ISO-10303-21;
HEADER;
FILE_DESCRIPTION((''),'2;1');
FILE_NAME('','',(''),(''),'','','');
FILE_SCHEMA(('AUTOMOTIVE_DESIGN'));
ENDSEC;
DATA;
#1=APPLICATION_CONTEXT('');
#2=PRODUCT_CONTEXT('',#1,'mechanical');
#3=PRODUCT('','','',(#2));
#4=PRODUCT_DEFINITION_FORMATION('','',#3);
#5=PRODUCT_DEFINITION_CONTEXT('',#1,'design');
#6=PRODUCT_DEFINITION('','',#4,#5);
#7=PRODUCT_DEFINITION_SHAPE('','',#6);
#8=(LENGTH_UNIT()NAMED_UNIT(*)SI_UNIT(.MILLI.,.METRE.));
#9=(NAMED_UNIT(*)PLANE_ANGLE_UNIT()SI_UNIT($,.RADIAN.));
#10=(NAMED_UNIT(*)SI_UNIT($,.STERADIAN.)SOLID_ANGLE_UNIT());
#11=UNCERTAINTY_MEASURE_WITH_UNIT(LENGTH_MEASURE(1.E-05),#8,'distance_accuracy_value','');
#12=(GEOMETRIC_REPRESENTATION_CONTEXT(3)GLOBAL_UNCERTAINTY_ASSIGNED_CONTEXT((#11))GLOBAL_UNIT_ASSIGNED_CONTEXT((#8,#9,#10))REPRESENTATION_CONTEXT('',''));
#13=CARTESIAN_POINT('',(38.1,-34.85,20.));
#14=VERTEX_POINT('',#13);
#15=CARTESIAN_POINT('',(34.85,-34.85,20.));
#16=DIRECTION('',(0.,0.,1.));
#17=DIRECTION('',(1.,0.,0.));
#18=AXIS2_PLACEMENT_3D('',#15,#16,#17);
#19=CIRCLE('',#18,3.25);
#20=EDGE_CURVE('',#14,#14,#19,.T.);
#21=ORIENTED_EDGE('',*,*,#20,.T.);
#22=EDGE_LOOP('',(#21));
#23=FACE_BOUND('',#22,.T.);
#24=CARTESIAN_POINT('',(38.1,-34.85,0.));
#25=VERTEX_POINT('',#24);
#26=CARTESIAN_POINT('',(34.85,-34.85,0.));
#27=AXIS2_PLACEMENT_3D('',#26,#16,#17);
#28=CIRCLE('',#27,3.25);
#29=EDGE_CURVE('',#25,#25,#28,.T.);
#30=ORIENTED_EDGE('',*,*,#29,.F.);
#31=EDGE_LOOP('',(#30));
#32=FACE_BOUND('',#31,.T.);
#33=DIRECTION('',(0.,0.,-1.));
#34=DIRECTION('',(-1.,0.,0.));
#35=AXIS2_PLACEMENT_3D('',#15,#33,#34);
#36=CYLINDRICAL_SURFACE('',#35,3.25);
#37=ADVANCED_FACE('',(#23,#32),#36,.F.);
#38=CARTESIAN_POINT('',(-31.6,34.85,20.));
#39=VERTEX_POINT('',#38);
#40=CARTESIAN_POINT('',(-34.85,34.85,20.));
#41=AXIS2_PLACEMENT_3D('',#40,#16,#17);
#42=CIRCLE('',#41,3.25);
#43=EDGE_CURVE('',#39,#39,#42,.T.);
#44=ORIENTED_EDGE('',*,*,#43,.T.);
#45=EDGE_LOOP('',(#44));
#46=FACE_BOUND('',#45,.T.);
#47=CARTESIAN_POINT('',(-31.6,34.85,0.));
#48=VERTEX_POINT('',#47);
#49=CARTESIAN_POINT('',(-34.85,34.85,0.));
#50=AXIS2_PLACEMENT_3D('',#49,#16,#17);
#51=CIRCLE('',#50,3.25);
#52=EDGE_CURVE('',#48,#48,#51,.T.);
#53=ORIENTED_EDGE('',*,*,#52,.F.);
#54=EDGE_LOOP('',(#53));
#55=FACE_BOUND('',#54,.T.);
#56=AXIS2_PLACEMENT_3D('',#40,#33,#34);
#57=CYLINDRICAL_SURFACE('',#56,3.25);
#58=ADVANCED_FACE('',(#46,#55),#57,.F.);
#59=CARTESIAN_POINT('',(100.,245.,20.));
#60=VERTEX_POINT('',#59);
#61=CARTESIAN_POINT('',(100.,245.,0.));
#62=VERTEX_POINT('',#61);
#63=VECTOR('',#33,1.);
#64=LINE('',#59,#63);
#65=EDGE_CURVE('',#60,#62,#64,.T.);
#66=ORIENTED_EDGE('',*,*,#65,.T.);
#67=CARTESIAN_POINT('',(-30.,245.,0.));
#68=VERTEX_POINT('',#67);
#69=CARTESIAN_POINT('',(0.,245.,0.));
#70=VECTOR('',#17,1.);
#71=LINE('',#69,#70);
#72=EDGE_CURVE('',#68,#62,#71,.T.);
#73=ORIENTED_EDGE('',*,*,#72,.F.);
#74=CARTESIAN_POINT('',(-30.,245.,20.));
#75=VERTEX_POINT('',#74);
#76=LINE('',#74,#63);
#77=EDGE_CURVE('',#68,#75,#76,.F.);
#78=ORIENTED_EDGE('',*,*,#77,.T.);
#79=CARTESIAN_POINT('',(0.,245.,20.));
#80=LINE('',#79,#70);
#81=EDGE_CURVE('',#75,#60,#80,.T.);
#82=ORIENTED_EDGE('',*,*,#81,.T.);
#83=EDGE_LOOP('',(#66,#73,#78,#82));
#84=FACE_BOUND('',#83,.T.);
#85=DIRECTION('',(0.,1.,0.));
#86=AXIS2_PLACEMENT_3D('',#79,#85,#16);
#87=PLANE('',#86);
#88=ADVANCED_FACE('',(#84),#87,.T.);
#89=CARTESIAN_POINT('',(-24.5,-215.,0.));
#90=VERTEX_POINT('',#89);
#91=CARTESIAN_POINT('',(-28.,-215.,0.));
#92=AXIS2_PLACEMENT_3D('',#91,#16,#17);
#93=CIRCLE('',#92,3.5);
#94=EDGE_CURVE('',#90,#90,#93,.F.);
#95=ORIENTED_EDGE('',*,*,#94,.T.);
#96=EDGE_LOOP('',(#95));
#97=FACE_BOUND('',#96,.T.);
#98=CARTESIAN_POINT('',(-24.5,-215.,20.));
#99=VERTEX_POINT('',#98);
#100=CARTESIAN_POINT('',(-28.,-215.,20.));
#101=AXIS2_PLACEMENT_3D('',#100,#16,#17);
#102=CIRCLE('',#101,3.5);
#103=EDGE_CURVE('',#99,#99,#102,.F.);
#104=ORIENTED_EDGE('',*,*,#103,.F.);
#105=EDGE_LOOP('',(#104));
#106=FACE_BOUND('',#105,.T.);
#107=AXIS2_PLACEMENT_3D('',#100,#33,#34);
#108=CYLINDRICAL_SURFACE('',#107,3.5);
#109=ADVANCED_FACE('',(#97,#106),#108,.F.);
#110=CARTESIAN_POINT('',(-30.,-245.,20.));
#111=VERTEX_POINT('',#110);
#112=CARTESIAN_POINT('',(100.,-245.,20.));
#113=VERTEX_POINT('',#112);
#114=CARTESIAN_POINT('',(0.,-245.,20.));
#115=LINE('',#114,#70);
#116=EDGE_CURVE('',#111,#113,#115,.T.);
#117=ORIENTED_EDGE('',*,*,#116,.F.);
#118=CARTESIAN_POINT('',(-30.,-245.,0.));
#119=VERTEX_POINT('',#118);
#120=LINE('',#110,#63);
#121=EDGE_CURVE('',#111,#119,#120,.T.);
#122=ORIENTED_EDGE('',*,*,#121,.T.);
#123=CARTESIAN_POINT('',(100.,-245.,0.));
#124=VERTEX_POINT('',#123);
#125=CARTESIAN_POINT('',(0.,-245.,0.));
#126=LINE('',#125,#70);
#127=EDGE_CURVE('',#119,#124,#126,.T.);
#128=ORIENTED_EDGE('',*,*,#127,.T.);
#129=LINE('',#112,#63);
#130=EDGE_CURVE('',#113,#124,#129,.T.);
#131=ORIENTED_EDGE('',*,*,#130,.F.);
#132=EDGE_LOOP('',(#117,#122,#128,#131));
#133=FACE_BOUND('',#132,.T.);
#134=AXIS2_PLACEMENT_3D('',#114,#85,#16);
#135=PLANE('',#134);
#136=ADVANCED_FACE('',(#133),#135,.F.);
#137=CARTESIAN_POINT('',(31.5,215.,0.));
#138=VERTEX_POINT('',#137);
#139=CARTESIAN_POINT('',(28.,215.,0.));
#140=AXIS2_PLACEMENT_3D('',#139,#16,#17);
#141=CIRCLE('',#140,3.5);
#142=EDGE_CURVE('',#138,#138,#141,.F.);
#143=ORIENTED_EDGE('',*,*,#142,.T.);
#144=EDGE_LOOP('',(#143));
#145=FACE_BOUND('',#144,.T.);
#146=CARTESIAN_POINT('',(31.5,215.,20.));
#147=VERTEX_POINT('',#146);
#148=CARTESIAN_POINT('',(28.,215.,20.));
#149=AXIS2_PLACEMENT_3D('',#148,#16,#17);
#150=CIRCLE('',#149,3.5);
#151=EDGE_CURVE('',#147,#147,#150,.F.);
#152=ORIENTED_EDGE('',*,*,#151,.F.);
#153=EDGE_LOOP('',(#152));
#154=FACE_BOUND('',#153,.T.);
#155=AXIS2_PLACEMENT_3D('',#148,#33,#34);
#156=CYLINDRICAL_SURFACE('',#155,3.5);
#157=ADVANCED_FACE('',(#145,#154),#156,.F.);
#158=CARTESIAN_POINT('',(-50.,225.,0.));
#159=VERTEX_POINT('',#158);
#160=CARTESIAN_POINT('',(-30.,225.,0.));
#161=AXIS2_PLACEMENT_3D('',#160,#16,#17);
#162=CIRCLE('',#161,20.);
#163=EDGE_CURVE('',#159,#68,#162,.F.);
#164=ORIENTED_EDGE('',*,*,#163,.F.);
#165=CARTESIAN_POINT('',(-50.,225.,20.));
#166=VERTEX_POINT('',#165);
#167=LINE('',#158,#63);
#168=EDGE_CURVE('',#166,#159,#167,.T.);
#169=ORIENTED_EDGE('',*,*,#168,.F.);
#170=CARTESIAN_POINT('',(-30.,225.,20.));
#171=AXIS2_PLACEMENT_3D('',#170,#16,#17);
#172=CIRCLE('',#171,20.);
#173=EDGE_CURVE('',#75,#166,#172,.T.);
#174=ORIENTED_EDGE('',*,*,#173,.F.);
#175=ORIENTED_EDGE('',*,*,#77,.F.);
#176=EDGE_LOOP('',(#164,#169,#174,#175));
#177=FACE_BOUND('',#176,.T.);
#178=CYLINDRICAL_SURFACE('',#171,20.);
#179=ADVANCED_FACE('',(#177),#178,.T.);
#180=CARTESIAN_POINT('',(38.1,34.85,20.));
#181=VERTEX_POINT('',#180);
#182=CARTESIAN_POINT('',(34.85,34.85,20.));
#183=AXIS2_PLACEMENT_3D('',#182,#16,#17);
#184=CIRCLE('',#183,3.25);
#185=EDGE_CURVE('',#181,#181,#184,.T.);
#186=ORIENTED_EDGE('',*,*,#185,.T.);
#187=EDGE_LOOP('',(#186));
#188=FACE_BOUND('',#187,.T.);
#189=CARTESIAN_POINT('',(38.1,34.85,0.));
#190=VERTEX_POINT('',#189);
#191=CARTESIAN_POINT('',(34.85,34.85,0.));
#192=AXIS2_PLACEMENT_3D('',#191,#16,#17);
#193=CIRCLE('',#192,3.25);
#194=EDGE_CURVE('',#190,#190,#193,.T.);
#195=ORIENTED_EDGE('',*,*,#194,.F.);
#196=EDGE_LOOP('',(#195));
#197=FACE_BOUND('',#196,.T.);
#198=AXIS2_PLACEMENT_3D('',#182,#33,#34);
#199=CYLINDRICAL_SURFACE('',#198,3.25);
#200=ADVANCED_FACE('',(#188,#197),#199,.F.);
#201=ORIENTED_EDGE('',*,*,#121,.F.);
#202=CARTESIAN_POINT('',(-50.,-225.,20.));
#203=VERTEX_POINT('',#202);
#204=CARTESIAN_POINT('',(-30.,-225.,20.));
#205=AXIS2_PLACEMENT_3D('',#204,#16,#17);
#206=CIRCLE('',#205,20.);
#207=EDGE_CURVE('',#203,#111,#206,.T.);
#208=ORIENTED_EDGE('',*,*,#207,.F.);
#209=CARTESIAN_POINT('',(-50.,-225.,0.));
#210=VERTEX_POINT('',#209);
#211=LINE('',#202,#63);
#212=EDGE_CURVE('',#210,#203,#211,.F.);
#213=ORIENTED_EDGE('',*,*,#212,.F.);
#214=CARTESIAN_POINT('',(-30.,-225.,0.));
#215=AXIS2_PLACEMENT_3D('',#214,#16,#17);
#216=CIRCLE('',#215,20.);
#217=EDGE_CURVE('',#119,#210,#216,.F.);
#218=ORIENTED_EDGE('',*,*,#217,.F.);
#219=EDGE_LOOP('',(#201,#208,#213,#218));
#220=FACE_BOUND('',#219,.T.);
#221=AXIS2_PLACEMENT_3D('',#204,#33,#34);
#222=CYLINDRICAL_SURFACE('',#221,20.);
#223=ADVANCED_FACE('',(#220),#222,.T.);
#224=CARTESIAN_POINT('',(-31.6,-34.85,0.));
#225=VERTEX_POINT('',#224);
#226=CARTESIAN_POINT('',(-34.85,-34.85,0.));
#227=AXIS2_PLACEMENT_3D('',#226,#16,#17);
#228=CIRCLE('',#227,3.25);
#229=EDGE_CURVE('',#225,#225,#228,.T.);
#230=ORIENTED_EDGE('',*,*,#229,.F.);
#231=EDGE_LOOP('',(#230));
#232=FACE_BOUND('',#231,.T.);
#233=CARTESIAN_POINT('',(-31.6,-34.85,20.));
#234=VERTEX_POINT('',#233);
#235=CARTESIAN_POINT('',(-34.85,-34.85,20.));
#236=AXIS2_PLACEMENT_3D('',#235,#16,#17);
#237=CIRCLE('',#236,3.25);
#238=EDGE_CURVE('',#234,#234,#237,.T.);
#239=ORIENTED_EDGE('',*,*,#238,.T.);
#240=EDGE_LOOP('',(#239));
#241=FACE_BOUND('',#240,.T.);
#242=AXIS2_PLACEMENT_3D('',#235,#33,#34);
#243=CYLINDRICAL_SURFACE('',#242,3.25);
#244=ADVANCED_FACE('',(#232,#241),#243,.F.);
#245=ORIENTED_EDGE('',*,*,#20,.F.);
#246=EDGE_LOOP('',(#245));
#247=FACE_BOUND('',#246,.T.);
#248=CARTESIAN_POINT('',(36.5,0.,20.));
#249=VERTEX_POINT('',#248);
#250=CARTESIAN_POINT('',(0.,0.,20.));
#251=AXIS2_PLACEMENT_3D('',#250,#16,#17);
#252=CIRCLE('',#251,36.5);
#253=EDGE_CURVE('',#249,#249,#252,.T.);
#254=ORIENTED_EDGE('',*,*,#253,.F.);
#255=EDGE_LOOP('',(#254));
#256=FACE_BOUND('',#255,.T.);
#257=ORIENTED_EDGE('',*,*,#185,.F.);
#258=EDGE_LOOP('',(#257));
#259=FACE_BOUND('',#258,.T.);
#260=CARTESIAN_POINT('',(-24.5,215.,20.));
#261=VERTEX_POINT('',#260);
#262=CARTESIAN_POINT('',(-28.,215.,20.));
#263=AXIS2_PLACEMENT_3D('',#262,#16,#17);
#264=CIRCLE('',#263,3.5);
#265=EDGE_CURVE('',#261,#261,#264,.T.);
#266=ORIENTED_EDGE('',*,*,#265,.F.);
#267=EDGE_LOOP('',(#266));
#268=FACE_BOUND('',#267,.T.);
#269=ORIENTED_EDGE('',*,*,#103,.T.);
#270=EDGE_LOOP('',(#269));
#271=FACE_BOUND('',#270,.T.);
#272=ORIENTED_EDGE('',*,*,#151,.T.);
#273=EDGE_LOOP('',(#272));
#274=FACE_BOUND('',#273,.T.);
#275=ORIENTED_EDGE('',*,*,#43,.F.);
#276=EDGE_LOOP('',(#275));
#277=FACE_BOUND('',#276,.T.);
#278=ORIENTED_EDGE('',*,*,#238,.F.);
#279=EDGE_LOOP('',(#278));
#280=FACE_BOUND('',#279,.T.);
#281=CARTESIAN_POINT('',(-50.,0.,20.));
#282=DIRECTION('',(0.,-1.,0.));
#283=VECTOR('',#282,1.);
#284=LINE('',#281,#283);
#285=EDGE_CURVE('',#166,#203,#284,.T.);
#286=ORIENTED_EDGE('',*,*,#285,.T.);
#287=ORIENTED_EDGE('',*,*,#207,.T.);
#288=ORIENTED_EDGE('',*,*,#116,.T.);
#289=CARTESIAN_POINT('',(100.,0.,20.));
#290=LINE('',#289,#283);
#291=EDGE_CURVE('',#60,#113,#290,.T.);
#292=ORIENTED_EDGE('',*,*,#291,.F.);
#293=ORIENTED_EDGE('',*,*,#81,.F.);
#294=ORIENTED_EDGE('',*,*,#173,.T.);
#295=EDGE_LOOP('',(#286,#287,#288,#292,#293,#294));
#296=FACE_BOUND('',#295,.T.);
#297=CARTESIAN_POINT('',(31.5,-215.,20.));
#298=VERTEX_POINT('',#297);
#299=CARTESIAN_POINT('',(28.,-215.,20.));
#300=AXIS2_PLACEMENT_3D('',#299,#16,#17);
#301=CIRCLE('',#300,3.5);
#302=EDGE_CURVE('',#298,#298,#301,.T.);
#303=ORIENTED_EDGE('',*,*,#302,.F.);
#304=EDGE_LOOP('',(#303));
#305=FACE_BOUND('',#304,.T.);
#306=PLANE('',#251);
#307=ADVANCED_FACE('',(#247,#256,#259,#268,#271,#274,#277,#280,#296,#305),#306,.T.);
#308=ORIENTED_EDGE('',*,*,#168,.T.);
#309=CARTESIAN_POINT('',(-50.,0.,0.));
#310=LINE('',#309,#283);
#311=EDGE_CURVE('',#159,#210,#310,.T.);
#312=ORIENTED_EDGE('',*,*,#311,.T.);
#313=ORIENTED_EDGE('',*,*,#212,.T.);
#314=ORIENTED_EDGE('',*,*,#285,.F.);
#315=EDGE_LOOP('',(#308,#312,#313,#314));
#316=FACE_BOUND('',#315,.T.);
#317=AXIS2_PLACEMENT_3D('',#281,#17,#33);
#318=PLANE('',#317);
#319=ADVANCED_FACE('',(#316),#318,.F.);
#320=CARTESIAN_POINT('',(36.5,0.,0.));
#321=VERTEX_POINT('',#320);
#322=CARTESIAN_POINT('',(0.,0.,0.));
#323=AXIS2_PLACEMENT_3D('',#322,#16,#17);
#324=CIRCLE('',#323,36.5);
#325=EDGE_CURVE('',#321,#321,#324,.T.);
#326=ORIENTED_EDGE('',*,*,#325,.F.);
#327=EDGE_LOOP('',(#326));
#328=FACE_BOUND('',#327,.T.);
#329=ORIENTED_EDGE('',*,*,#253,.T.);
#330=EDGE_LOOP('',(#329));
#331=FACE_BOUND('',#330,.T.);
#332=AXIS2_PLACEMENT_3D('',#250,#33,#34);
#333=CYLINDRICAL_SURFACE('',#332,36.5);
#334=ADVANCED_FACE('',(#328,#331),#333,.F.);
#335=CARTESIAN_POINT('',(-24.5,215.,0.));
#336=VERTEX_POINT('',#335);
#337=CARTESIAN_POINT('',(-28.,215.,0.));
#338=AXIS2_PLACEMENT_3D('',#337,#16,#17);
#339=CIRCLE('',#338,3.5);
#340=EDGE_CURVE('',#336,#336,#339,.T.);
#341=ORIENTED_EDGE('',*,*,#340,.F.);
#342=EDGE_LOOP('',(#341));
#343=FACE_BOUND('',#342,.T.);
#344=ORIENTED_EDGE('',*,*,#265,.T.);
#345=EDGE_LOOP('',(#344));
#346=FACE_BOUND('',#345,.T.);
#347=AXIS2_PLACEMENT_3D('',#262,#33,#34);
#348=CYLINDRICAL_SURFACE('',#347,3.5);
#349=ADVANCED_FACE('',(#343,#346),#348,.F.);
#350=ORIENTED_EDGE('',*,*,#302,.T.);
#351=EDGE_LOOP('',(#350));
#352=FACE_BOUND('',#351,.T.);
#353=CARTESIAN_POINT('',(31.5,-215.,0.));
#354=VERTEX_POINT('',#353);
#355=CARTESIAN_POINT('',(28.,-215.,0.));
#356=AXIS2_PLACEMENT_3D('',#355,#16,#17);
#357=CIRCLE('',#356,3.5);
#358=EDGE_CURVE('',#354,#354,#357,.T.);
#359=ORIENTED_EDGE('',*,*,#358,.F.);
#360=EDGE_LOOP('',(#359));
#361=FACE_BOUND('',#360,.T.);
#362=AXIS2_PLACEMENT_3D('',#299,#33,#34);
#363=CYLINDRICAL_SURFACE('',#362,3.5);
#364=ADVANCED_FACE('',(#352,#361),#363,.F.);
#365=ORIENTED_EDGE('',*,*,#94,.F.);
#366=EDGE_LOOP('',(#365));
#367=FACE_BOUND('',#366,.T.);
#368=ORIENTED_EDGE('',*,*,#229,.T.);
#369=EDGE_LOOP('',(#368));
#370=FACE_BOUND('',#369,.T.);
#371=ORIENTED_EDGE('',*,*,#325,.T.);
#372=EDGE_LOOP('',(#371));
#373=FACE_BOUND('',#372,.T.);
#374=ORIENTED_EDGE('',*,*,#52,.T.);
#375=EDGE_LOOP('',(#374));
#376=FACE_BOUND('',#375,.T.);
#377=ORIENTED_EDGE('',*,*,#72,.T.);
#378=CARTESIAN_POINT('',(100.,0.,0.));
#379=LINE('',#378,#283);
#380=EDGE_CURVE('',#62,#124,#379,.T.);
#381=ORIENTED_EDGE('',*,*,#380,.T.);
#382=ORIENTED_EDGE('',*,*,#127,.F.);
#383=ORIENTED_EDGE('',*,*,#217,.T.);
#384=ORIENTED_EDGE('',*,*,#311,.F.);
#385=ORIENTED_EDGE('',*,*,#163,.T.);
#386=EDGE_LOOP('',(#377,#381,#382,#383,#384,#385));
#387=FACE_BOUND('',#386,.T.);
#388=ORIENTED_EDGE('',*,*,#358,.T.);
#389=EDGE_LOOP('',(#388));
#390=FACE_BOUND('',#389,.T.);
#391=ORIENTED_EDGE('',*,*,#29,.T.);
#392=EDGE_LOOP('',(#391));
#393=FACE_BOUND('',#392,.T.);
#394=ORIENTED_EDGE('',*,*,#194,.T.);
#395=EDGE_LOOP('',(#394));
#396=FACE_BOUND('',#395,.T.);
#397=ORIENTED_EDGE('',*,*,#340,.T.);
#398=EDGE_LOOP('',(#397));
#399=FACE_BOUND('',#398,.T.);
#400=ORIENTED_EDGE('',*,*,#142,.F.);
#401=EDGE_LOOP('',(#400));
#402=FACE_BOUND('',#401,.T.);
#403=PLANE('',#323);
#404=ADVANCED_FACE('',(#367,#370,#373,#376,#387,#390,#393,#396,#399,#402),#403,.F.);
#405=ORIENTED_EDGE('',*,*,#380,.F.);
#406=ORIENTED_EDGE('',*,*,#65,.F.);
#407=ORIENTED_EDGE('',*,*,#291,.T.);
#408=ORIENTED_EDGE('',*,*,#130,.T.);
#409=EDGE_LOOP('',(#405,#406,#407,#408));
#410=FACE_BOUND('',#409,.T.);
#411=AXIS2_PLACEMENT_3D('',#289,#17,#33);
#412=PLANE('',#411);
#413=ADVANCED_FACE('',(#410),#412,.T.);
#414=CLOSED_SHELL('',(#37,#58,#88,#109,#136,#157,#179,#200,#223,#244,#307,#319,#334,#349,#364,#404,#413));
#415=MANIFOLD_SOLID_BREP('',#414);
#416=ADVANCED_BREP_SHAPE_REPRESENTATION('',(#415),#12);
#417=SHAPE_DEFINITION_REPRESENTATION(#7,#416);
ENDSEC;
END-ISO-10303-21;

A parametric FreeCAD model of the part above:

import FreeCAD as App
import Part
import Sketcher

V = App.Vector


def edges_at(feature, points):
    """Names of the edges that pass closest to the given points."""
    edges = feature.Shape.Edges
    near = lambda p: min(range(len(edges)), key=lambda i: edges[i].distToShape(Part.Vertex(*p))[0])
    return sorted({f"Edge{near(p) + 1}" for p in points})


def add_polygon(sketch, points):
    """Adds a closed chain of lines whose ends are joined by coincident constraints."""
    first, n = sketch.GeometryCount, len(points)
    for a, b in zip(points, points[1:] + points[:1]):
        sketch.addGeometry(Part.LineSegment(App.Vector(*a, 0), App.Vector(*b, 0)), False)
    for i in range(n):
        sketch.addConstraint(Sketcher.Constraint("Coincident", first + i, 2, first + (i + 1) % n, 1))

doc = App.newDocument("Part")
body = doc.addObject("PartDesign::Body", "Body")

# Sketch on XY plane
sketch1 = body.newObject("Sketcher::SketchObject", "Sketch")
sketch1.AttachmentSupport = (doc.getObject("XY_Plane"), [""])
sketch1.MapMode = "FlatFace"
add_polygon(sketch1, [(-50, 245), (-50, -245), (100, -245), (100, 245)])  # lines 0-3
sketch1.addGeometry(Part.Circle(V(-28, -215, 0), V(0, 0, 1), 3.5), False)  # 4
sketch1.addGeometry(Part.Circle(V(-34.85, -34.85, 0), V(0, 0, 1), 3.25), False)  # 5
sketch1.addGeometry(Part.Circle(V(28, -215, 0), V(0, 0, 1), 3.5), False)  # 6
sketch1.addGeometry(Part.Circle(V(34.85, -34.85, 0), V(0, 0, 1), 3.25), False)  # 7
sketch1.addGeometry(Part.Circle(V(-34.85, 34.85, 0), V(0, 0, 1), 3.25), False)  # 8
sketch1.addGeometry(Part.Circle(V(-28, 215, 0), V(0, 0, 1), 3.5), False)  # 9
sketch1.addGeometry(Part.Circle(V(0, 0, 0), V(0, 0, 1), 36.5), False)  # 10
sketch1.addGeometry(Part.Circle(V(34.85, 34.85, 0), V(0, 0, 1), 3.25), False)  # 11
sketch1.addGeometry(Part.Circle(V(28, 215, 0), V(0, 0, 1), 3.5), False)  # 12
sketch1.addConstraint(Sketcher.Constraint("Vertical", 0))
sketch1.addConstraint(Sketcher.Constraint("Horizontal", 1))
sketch1.addConstraint(Sketcher.Constraint("Vertical", 2))
sketch1.addConstraint(Sketcher.Constraint("Horizontal", 3))
sketch1.addConstraint(Sketcher.Constraint("Coincident", 10, 3, -1, 1))
sketch1.addConstraint(Sketcher.Constraint("Equal", 4, 6))
sketch1.addConstraint(Sketcher.Constraint("Equal", 5, 7))
sketch1.addConstraint(Sketcher.Constraint("Equal", 7, 8))
sketch1.addConstraint(Sketcher.Constraint("Equal", 6, 9))
sketch1.addConstraint(Sketcher.Constraint("Equal", 8, 11))
sketch1.addConstraint(Sketcher.Constraint("Equal", 9, 12))
sketch1.addConstraint(Sketcher.Constraint("Symmetric", 7, 3, 8, 3, -1, 1))
sketch1.addConstraint(Sketcher.Constraint("Symmetric", 6, 3, 9, 3, -1, 1))
sketch1.addConstraint(Sketcher.Constraint("Symmetric", 5, 3, 11, 3, -1, 1))
sketch1.addConstraint(Sketcher.Constraint("Symmetric", 4, 3, 12, 3, -1, 1))
sketch1.addConstraint(Sketcher.Constraint("Symmetric", 4, 3, 6, 3, -2))
sketch1.addConstraint(Sketcher.Constraint("Symmetric", 5, 3, 7, 3, -2))
sketch1.addConstraint(Sketcher.Constraint("Diameter", 4, 7.0))
sketch1.addConstraint(Sketcher.Constraint("Diameter", 10, 73.0))
sketch1.addConstraint(Sketcher.Constraint("Diameter", 5, 6.5))
sketch1.addConstraint(Sketcher.Constraint("DistanceX", 1, 1, 1, 2, 150.0))
sketch1.addConstraint(Sketcher.Constraint("DistanceY", 0, 2, 0, 1, 490.0))
sketch1.addConstraint(Sketcher.Constraint("DistanceX", 4, 3, -1, 1, 28.0))
sketch1.addConstraint(Sketcher.Constraint("DistanceY", 4, 3, -1, 1, 215.0))
sketch1.addConstraint(Sketcher.Constraint("DistanceX", 0, 2, -1, 1, 50.0))
sketch1.addConstraint(Sketcher.Constraint("DistanceY", 0, 2, -1, 1, 245.0))
sketch1.addConstraint(Sketcher.Constraint("DistanceX", 5, 3, 7, 3, 69.7))
sketch1.addConstraint(Sketcher.Constraint("DistanceY", 5, 3, 8, 3, 69.7))
pad1 = body.newObject("PartDesign::Pad", "Pad")
pad1.Profile = sketch1
pad1.Length = 20
doc.recompute()

fillet = body.newObject("PartDesign::Fillet", "Fillet")
fillet.Base = (pad1, edges_at(pad1, [(-50, -245, 10), (-50, 245, 10)]))
fillet.Radius = 20

doc.recompute()
